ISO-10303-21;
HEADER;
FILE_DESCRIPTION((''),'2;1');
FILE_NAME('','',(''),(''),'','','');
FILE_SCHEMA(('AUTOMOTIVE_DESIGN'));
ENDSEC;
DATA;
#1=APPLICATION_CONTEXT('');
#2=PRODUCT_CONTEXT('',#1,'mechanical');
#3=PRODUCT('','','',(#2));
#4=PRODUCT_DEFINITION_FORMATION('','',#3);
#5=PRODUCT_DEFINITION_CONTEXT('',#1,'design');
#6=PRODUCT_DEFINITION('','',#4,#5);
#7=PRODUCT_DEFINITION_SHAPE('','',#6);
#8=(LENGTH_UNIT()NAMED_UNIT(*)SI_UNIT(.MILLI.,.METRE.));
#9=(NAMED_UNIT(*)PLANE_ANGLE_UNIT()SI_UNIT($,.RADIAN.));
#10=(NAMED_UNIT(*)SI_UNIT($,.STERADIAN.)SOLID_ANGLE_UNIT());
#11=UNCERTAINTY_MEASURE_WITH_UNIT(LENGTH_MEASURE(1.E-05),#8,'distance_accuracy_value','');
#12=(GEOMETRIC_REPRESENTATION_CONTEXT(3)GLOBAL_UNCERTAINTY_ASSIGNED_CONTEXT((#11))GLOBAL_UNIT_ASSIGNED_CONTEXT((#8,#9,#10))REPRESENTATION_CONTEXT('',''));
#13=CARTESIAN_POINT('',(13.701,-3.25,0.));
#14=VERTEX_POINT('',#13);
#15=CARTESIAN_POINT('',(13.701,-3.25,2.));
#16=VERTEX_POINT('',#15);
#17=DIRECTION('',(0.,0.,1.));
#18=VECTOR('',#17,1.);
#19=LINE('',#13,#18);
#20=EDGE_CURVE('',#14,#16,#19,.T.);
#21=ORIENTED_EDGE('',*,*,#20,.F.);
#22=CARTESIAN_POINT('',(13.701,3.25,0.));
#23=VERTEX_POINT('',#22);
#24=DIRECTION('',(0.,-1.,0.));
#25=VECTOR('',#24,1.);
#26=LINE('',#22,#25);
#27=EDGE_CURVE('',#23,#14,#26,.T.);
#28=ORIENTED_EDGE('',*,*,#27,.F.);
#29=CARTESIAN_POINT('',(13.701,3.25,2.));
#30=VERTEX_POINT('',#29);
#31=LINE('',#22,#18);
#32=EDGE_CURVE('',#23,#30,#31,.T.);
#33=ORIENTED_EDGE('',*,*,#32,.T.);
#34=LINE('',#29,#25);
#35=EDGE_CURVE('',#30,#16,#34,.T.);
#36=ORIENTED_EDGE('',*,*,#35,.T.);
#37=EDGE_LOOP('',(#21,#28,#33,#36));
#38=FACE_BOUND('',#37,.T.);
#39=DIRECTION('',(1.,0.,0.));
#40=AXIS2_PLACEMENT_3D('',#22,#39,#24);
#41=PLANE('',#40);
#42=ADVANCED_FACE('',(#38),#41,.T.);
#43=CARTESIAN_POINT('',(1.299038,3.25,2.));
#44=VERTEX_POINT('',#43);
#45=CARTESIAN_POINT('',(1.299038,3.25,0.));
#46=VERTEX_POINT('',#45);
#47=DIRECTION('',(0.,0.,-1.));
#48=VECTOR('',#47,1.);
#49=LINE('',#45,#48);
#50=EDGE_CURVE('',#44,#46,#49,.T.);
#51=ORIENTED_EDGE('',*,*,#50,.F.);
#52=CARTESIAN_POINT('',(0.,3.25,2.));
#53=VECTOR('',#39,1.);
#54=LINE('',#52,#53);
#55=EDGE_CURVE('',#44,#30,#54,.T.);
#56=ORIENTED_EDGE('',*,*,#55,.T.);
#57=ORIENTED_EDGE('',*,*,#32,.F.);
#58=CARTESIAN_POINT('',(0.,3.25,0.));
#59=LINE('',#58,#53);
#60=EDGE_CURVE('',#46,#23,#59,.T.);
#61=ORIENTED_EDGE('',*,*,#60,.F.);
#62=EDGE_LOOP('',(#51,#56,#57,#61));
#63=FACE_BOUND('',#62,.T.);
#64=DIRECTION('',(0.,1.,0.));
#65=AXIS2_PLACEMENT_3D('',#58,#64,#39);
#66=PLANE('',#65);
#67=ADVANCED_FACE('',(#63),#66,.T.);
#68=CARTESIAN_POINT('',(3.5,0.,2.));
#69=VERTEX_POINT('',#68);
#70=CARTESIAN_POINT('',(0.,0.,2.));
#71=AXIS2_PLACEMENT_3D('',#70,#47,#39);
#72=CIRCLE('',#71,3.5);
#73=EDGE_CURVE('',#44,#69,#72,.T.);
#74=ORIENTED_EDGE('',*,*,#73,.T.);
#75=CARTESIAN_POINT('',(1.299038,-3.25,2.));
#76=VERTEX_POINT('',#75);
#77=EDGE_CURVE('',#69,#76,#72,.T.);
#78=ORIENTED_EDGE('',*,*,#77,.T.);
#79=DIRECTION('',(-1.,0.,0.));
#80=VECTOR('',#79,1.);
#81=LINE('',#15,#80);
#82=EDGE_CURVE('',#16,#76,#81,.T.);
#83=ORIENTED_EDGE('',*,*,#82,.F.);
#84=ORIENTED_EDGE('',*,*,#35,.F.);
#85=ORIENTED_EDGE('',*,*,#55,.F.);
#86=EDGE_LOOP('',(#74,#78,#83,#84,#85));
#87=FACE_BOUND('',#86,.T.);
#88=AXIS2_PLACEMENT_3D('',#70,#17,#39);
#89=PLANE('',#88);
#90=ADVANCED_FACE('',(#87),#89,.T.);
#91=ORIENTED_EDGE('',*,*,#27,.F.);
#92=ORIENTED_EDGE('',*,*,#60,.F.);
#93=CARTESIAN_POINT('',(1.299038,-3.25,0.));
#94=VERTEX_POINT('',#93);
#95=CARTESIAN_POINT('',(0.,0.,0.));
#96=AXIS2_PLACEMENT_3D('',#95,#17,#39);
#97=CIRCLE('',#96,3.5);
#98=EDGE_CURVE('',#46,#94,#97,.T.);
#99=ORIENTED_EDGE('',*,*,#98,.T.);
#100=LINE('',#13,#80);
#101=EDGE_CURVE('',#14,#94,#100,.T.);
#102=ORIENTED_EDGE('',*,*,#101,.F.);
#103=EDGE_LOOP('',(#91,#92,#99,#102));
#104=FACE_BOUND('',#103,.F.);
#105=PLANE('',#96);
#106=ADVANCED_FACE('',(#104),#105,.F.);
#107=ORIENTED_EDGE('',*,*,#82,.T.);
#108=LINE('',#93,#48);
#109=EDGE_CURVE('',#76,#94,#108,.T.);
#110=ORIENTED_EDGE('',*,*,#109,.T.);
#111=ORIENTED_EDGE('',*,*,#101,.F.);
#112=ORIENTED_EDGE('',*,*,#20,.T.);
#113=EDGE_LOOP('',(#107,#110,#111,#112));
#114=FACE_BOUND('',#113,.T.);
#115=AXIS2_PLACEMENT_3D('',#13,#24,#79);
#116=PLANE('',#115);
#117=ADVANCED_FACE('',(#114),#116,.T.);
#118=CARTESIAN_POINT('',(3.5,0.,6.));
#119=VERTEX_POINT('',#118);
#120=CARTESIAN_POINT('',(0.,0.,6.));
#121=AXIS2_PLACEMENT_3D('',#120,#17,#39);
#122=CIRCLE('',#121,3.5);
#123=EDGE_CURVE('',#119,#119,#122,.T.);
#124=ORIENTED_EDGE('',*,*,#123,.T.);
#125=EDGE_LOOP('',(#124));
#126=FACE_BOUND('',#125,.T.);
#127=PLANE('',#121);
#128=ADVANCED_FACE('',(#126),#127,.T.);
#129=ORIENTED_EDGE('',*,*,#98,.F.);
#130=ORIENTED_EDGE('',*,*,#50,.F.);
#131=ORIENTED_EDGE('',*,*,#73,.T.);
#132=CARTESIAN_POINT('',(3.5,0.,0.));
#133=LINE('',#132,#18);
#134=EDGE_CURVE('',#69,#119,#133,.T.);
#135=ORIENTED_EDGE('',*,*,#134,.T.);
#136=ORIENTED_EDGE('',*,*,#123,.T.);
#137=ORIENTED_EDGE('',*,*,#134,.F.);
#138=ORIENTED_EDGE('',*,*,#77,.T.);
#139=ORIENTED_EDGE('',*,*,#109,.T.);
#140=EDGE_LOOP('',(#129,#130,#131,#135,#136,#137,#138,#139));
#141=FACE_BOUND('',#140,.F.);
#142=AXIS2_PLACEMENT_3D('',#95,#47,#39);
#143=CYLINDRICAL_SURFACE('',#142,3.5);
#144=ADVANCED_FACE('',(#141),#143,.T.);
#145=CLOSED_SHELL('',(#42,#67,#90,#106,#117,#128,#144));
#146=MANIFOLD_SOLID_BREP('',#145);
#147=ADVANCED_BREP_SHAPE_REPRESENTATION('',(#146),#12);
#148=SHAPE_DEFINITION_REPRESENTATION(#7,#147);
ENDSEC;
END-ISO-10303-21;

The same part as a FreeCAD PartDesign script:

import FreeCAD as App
import Part
import Sketcher
Q = App.Units.Quantity


def add_polygon(sketch, points):
    """Adds a closed chain of lines whose ends are joined by coincident constraints."""
    first, n = sketch.GeometryCount, len(points)
    for a, b in zip(points, points[1:] + points[:1]):
        sketch.addGeometry(Part.LineSegment(App.Vector(*a, 0), App.Vector(*b, 0)), False)
    for i in range(n):
        sketch.addConstraint(Sketcher.Constraint("Coincident", first + i, 2, first + (i + 1) % n, 1))

doc = App.newDocument("Part")
body = doc.addObject("PartDesign::Body", "Body")

sketch1 = body.newObject("Sketcher::SketchObject", "Sketch")
sketch1.AttachmentSupport = (doc.getObject("XY_Plane"), [""])
sketch1.MapMode = "FlatFace"
sketch1.addGeometry(Part.Circle(App.Vector(0, 0, 0), App.Vector(0, 0, 1), 3.5), False)
sketch1.addConstraint([
    Sketcher.Constraint("Coincident", 0, 3, -1, 1),
    Sketcher.Constraint("Diameter", 0, Q("7 mm")),
])
pad1 = body.newObject("PartDesign::Pad", "Pad")
pad1.Profile = sketch1
pad1.Length = 6

sketch2 = body.newObject("Sketcher::SketchObject", "Sketch001")
sketch2.AttachmentSupport = (doc.getObject("XY_Plane"), [""])
sketch2.MapMode = "FlatFace"
add_polygon(sketch2, [(14, 3), (0, 3), (0, -3), (14, -3)])
sketch2.addConstraint([
    Sketcher.Constraint("Horizontal", 0),
    Sketcher.Constraint("Vertical", 1),
    Sketcher.Constraint("Horizontal", 2),
    Sketcher.Constraint("Vertical", 3),
    Sketcher.Constraint("Symmetric", 0, 2, 1, 2, -1, 1),
    Sketcher.Constraint("DistanceY", 1, 2, 1, 1, Q("6.5 mm")),
    Sketcher.Constraint("DistanceX", 0, 2, 0, 1, Q("13.701 mm")),
])
pad2 = body.newObject("PartDesign::Pad", "Pad001")
pad2.Profile = sketch2
pad2.Length = 2

doc.recompute()
